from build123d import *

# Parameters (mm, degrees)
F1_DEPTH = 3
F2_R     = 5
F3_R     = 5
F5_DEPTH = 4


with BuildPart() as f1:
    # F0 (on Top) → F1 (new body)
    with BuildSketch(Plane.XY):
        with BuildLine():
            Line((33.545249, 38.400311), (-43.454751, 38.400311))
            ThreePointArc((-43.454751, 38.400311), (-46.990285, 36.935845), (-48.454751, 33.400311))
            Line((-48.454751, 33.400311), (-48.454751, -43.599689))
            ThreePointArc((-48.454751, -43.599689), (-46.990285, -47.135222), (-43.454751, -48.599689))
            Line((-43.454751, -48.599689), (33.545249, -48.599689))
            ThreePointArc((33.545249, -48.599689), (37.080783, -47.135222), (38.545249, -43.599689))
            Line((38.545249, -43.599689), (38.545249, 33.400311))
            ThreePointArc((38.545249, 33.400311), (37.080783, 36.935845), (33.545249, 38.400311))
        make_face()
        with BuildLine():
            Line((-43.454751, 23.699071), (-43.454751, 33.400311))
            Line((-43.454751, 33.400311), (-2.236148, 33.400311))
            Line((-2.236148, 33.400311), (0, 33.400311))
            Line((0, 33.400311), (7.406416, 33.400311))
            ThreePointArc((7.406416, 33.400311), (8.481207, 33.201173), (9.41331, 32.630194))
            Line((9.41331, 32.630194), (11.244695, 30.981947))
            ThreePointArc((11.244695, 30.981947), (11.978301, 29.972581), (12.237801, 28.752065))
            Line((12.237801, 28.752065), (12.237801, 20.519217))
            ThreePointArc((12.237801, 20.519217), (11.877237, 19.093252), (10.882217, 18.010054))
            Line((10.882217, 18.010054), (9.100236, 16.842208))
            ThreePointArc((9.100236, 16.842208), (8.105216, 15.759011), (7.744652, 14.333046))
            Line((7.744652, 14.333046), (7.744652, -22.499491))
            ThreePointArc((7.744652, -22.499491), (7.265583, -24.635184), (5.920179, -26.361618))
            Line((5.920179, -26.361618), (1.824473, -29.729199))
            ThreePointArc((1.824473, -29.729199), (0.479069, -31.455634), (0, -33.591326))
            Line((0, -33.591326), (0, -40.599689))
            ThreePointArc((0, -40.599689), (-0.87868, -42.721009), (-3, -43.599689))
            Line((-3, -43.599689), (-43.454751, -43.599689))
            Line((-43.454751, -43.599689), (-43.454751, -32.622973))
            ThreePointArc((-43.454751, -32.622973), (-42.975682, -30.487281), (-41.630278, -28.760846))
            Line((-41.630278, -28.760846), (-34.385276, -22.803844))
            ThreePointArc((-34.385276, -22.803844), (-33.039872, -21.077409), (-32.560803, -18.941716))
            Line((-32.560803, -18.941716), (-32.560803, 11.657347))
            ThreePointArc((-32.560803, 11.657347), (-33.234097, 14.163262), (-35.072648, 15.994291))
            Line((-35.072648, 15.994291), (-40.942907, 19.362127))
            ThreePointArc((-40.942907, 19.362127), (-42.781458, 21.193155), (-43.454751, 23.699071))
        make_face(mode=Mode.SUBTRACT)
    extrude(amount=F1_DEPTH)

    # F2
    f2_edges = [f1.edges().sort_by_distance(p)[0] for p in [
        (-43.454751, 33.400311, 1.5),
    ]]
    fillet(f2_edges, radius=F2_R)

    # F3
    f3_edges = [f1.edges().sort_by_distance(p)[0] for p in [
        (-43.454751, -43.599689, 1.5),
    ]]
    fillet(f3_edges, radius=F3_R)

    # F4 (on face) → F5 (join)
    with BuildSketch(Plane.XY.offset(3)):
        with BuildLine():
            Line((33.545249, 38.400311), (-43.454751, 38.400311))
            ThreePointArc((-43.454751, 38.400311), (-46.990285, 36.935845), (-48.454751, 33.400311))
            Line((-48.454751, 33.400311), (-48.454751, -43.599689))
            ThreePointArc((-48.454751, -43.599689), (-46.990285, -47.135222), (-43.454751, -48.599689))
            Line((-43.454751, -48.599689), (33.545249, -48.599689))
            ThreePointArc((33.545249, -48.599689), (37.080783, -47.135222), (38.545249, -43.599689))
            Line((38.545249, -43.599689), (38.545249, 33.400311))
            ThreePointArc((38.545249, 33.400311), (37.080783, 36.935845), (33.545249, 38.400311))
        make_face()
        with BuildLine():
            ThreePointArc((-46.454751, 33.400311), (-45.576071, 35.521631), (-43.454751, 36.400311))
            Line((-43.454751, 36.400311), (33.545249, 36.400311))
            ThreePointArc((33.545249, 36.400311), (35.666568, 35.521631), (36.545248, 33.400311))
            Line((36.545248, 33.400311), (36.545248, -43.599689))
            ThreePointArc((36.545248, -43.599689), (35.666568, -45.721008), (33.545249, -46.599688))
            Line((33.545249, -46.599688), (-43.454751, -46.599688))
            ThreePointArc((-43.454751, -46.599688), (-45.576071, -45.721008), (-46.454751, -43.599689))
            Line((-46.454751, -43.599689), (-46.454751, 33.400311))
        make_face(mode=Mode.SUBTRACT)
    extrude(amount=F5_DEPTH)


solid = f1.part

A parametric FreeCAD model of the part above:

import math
import FreeCAD as App
import Part
import Sketcher


def edges_at(feature, points):
    """Names of the edges that pass closest to the given points."""
    edges = feature.Shape.Edges
    near = lambda p: min(range(len(edges)), key=lambda i: edges[i].distToShape(Part.Vertex(*p))[0])
    return sorted({f"Edge{near(p) + 1}" for p in points})

doc = App.newDocument("Part")
body = doc.addObject("PartDesign::Body", "Body")

# Sketch on XY plane
sketch1 = body.newObject("Sketcher::SketchObject", "Sketch")
sketch1.AttachmentSupport = (doc.getObject("XY_Plane"), [""])
sketch1.MapMode = "FlatFace"
sketch1.addGeometry(Part.LineSegment(App.Vector(33.5, 38.4, 0), App.Vector(-43.5, 38.4, 0)), False)
sketch1.addGeometry(Part.ArcOfCircle(Part.Circle(App.Vector(-43.5, 33.4, 0), App.Vector(0, 0, 1), 5), math.radians(90), math.radians(180)), False)
sketch1.addGeometry(Part.LineSegment(App.Vector(-48.5, 33.4, 0), App.Vector(-48.5, -43.6, 0)), False)
sketch1.addGeometry(Part.ArcOfCircle(Part.Circle(App.Vector(-43.5, -43.6, 0), App.Vector(0, 0, 1), 5), math.radians(-180), math.radians(-90)), False)
sketch1.addGeometry(Part.LineSegment(App.Vector(-43.5, -48.6, 0), App.Vector(33.5, -48.6, 0)), False)
sketch1.addGeometry(Part.ArcOfCircle(Part.Circle(App.Vector(33.5, -43.6, 0), App.Vector(0, 0, 1), 5), math.radians(-90), math.radians(0)), False)
sketch1.addGeometry(Part.LineSegment(App.Vector(38.5, -43.6, 0), App.Vector(38.5, 33.4, 0)), False)
sketch1.addGeometry(Part.ArcOfCircle(Part.Circle(App.Vector(33.5, 33.4, 0), App.Vector(0, 0, 1), 5), math.radians(0), math.radians(90)), False)
sketch1.addGeometry(Part.ArcOfCircle(Part.Circle(App.Vector(-38.5, 23.7, 0), App.Vector(0, 0, 1), 5), math.radians(180), math.radians(240)), False)
sketch1.addGeometry(Part.LineSegment(App.Vector(-43.5, 23.7, 0), App.Vector(-43.5, 33.4, 0)), False)
sketch1.addGeometry(Part.LineSegment(App.Vector(-43.5, 33.4, 0), App.Vector(7.4, 33.4, 0)), False)
sketch1.addGeometry(Part.ArcOfCircle(Part.Circle(App.Vector(7.4, 30.4, 0), App.Vector(0, 0, 1), 3), math.radians(48), math.radians(90)), False)
sketch1.addGeometry(Part.LineSegment(App.Vector(9.4, 32.6, 0), App.Vector(11.2, 31, 0)), False)
sketch1.addGeometry(Part.ArcOfCircle(Part.Circle(App.Vector(9.2, 28.8, 0), App.Vector(0, 0, 1), 3), math.radians(0), math.radians(48)), False)
sketch1.addGeometry(Part.LineSegment(App.Vector(12.2, 28.8, 0), App.Vector(12.2, 20.5, 0)), False)
sketch1.addGeometry(Part.ArcOfCircle(Part.Circle(App.Vector(9.2, 20.5, 0), App.Vector(0, 0, 1), 3), math.radians(-57), math.radians(0)), False)
sketch1.addGeometry(Part.LineSegment(App.Vector(10.9, 18, 0), App.Vector(9.1, 16.8, 0)), False)
sketch1.addGeometry(Part.ArcOfCircle(Part.Circle(App.Vector(10.7, 14.3, 0), App.Vector(0, 0, 1), 3), math.radians(123), math.radians(180)), False)
sketch1.addGeometry(Part.LineSegment(App.Vector(7.7, 14.3, 0), App.Vector(7.7, -22.5, 0)), False)
sketch1.addGeometry(Part.ArcOfCircle(Part.Circle(App.Vector(2.7, -22.5, 0), App.Vector(0, 0, 1), 5), math.radians(-51), math.radians(0)), False)
sketch1.addGeometry(Part.LineSegment(App.Vector(5.9, -26.4, 0), App.Vector(1.8, -29.7, 0)), False)
sketch1.addGeometry(Part.ArcOfCircle(Part.Circle(App.Vector(5, -33.6, 0), App.Vector(0, 0, 1), 5), math.radians(129), math.radians(180)), False)
sketch1.addGeometry(Part.LineSegment(App.Vector(0, -33.6, 0), App.Vector(0, -40.6, 0)), False)
sketch1.addGeometry(Part.ArcOfCircle(Part.Circle(App.Vector(-3, -40.6, 0), App.Vector(0, 0, 1), 3), math.radians(-90), math.radians(0)), False)
sketch1.addGeometry(Part.LineSegment(App.Vector(-3, -43.6, 0), App.Vector(-43.5, -43.6, 0)), False)
sketch1.addGeometry(Part.LineSegment(App.Vector(-43.5, -43.6, 0), App.Vector(-43.5, -32.6, 0)), False)
sketch1.addGeometry(Part.ArcOfCircle(Part.Circle(App.Vector(-38.5, -32.6, 0), App.Vector(0, 0, 1), 5), math.radians(129), math.radians(180)), False)
sketch1.addGeometry(Part.LineSegment(App.Vector(-41.6, -28.8, 0), App.Vector(-34.4, -22.8, 0)), False)
sketch1.addGeometry(Part.ArcOfCircle(Part.Circle(App.Vector(-37.6, -18.9, 0), App.Vector(0, 0, 1), 5), math.radians(-51), math.radians(0)), False)
sketch1.addGeometry(Part.LineSegment(App.Vector(-32.6, -18.9, 0), App.Vector(-32.6, 11.7, 0)), False)
sketch1.addGeometry(Part.ArcOfCircle(Part.Circle(App.Vector(-37.6, 11.7, 0), App.Vector(0, 0, 1), 5), math.radians(0), math.radians(60)), False)
sketch1.addGeometry(Part.LineSegment(App.Vector(-35.1, 16, 0), App.Vector(-40.9, 19.4, 0)), False)
sketch1.addConstraint(Sketcher.Constraint("Tangent", 0, 2, 1, 1))
sketch1.addConstraint(Sketcher.Constraint("Tangent", 1, 2, 2, 1))
sketch1.addConstraint(Sketcher.Constraint("Tangent", 2, 2, 3, 1))
sketch1.addConstraint(Sketcher.Constraint("Tangent", 3, 2, 4, 1))
sketch1.addConstraint(Sketcher.Constraint("Tangent", 4, 2, 5, 1))
sketch1.addConstraint(Sketcher.Constraint("Tangent", 5, 2, 6, 1))
sketch1.addConstraint(Sketcher.Constraint("Tangent", 6, 2, 7, 1))
sketch1.addConstraint(Sketcher.Constraint("Tangent", 7, 2, 0, 1))
sketch1.addConstraint(Sketcher.Constraint("Tangent", 8, 1, 9, 1))
sketch1.addConstraint(Sketcher.Constraint("Coincident", 9, 2, 10, 1))
sketch1.addConstraint(Sketcher.Constraint("Tangent", 10, 2, 11, 2))
sketch1.addConstraint(Sketcher.Constraint("Tangent", 11, 1, 12, 1))
sketch1.addConstraint(Sketcher.Constraint("Tangent", 12, 2, 13, 2))
sketch1.addConstraint(Sketcher.Constraint("Tangent", 13, 1, 14, 1))
sketch1.addConstraint(Sketcher.Constraint("Tangent", 14, 2, 15, 2))
sketch1.addConstraint(Sketcher.Constraint("Tangent", 15, 1, 16, 1))
sketch1.addConstraint(Sketcher.Constraint("Tangent", 16, 2, 17, 1))
sketch1.addConstraint(Sketcher.Constraint("Tangent", 17, 2, 18, 1))
sketch1.addConstraint(Sketcher.Constraint("Tangent", 18, 2, 19, 2))
sketch1.addConstraint(Sketcher.Constraint("Tangent", 19, 1, 20, 1))
sketch1.addConstraint(Sketcher.Constraint("Tangent", 20, 2, 21, 1))
sketch1.addConstraint(Sketcher.Constraint("Tangent", 21, 2, 22, 1))
sketch1.addConstraint(Sketcher.Constraint("Tangent", 22, 2, 23, 2))
sketch1.addConstraint(Sketcher.Constraint("Tangent", 23, 1, 24, 1))
sketch1.addConstraint(Sketcher.Constraint("Coincident", 24, 2, 25, 1))
sketch1.addConstraint(Sketcher.Constraint("Tangent", 25, 2, 26, 2))
sketch1.addConstraint(Sketcher.Constraint("Tangent", 26, 1, 27, 1))
sketch1.addConstraint(Sketcher.Constraint("Tangent", 27, 2, 28, 1))
sketch1.addConstraint(Sketcher.Constraint("Tangent", 28, 2, 29, 1))
sketch1.addConstraint(Sketcher.Constraint("Tangent", 29, 2, 30, 1))
sketch1.addConstraint(Sketcher.Constraint("Tangent", 30, 2, 31, 1))
sketch1.addConstraint(Sketcher.Constraint("Tangent", 31, 2, 8, 2))
sketch1.addConstraint(Sketcher.Constraint("Horizontal", 0))
sketch1.addConstraint(Sketcher.Constraint("Vertical", 2))
sketch1.addConstraint(Sketcher.Constraint("Horizontal", 4))
sketch1.addConstraint(Sketcher.Constraint("Vertical", 6))
sketch1.addConstraint(Sketcher.Constraint("Vertical", 9))
sketch1.addConstraint(Sketcher.Constraint("Horizontal", 10))
sketch1.addConstraint(Sketcher.Constraint("Vertical", 14))
sketch1.addConstraint(Sketcher.Constraint("Vertical", 18))
sketch1.addConstraint(Sketcher.Constraint("Vertical", 22))
sketch1.addConstraint(Sketcher.Constraint("Horizontal", 24))
sketch1.addConstraint(Sketcher.Constraint("Vertical", 25))
sketch1.addConstraint(Sketcher.Constraint("Vertical", 29))
sketch1.addConstraint(Sketcher.Constraint("Coincident", 9, 2, 1, 3))
sketch1.addConstraint(Sketcher.Constraint("Coincident", 24, 2, 3, 3))
sketch1.addConstraint(Sketcher.Constraint("Equal", 1, 3))
sketch1.addConstraint(Sketcher.Constraint("Equal", 3, 5))
sketch1.addConstraint(Sketcher.Constraint("Equal", 5, 7))
sketch1.addConstraint(Sketcher.Constraint("Equal", 8, 19))
sketch1.addConstraint(Sketcher.Constraint("Equal", 7, 21))
sketch1.addConstraint(Sketcher.Constraint("Equal", 17, 23))
sketch1.addConstraint(Sketcher.Constraint("Equal", 21, 26))
sketch1.addConstraint(Sketcher.Constraint("Equal", 26, 28))
sketch1.addConstraint(Sketcher.Constraint("Equal", 5, 30))
sketch1.addConstraint(Sketcher.Constraint("PointOnObject", 21, 2, -2))
sketch1.addConstraint(Sketcher.Constraint("Parallel", 20, 27))
sketch1.addConstraint(Sketcher.Constraint("Equal", 4, 2))
sketch1.addConstraint(Sketcher.Constraint("Radius", 1, 5.0))
sketch1.addConstraint(Sketcher.Constraint("Radius", 13, 2.999998))
sketch1.addConstraint(Sketcher.Constraint("Radius", 17, 3.0))
sketch1.addConstraint(Sketcher.Constraint("DistanceX", 0, 2, 0, 1, 77.0))
sketch1.addConstraint(Sketcher.Constraint("Radius", 8, 4.999996))
sketch1.addConstraint(Sketcher.Constraint("Radius", 11, 2.999994))
sketch1.addConstraint(Sketcher.Constraint("Radius", 15, 3.000004))
sketch1.addConstraint(Sketcher.Constraint("DistanceY", 26, 1, 27, 2, 5.957002))
sketch1.addConstraint(Sketcher.Constraint("DistanceX", 24, 2, 24, 1, 40.454751))
sketch1.addConstraint(Sketcher.Constraint("DistanceY", 9, 1, 9, 2, 9.70124))
sketch1.addConstraint(Sketcher.Constraint("DistanceY", 14, 2, 14, 1, 8.232848))
sketch1.addConstraint(Sketcher.Constraint("DistanceX", -1, 1, 13, 1, 12.237801))
sketch1.addConstraint(Sketcher.Constraint("DistanceY", 20, 2, -1, 1, 29.729199))
sketch1.addConstraint(Sketcher.Constraint("DistanceY", 15, 3, 11, 3, 9.881099))
sketch1.addConstraint(Sketcher.Constraint("DistanceX", 31, 2, 30, 3, 3.382101))
sketch1.addConstraint(Sketcher.Constraint("Distance", 16, 2.130568))
sketch1.addConstraint(Sketcher.Constraint("Distance", 27, 9.379548))
sketch1.addConstraint(Sketcher.Constraint("DistanceX", 10, 1, 10, 2, 50.861167))
sketch1.addConstraint(Sketcher.Constraint("DistanceY", 18, 2, 18, 1, 36.832537))
sketch1.addConstraint(Sketcher.Constraint("DistanceY", 22, 2, 22, 1, 7.008363))
sketch1.addConstraint(Sketcher.Constraint("DistanceY", 25, 1, 25, 2, 10.976716))
pad1 = body.newObject("PartDesign::Pad", "Pad")
pad1.Profile = sketch1
pad1.Length = 3
doc.recompute()

fillet = body.newObject("PartDesign::Fillet", "Fillet")
fillet.Base = (pad1, edges_at(pad1, [(-43.455, 33.4, 1.5)]))
fillet.Radius = 5
doc.recompute()

fillet2 = body.newObject("PartDesign::Fillet", "Fillet001")
fillet2.Base = (fillet, edges_at(fillet, [(-43.455, -43.6, 1.5)]))
fillet2.Radius = 5

# Sketch on XY plane
sketch2 = body.newObject("Sketcher::SketchObject", "Sketch001")
sketch2.AttachmentSupport = (doc.getObject("XY_Plane"), [""])
sketch2.MapMode = "FlatFace"
sketch2.AttachmentOffset = App.Placement(App.Vector(0, 0, 3), App.Rotation())
sketch2.addGeometry(Part.LineSegment(App.Vector(33.5, 38.4, 0), App.Vector(-43.5, 38.4, 0)), False)
sketch2.addGeometry(Part.ArcOfCircle(Part.Circle(App.Vector(-43.5, 33.4, 0), App.Vector(0, 0, 1), 5), math.radians(90), math.radians(180)), False)
sketch2.addGeometry(Part.LineSegment(App.Vector(-48.5, 33.4, 0), App.Vector(-48.5, -43.6, 0)), False)
sketch2.addGeometry(Part.ArcOfCircle(Part.Circle(App.Vector(-43.5, -43.6, 0), App.Vector(0, 0, 1), 5), math.radians(-180), math.radians(-90)), False)
sketch2.addGeometry(Part.LineSegment(App.Vector(-43.5, -48.6, 0), App.Vector(33.5, -48.6, 0)), False)
sketch2.addGeometry(Part.ArcOfCircle(Part.Circle(App.Vector(33.5, -43.6, 0), App.Vector(0, 0, 1), 5), math.radians(-90), math.radians(0)), False)
sketch2.addGeometry(Part.LineSegment(App.Vector(38.5, -43.6, 0), App.Vector(38.5, 33.4, 0)), False)
sketch2.addGeometry(Part.ArcOfCircle(Part.Circle(App.Vector(33.5, 33.4, 0), App.Vector(0, 0, 1), 5), math.radians(0), math.radians(90)), False)
sketch2.addGeometry(Part.LineSegment(App.Vector(-46.5, -43.6, 0), App.Vector(-46.5, 33.4, 0)), False)
sketch2.addGeometry(Part.ArcOfCircle(Part.Circle(App.Vector(-43.5, 33.4, 0), App.Vector(0, 0, 1), 3), math.radians(90), math.radians(180)), False)
sketch2.addGeometry(Part.LineSegment(App.Vector(-43.5, 36.4, 0), App.Vector(33.5, 36.4, 0)), False)
sketch2.addGeometry(Part.ArcOfCircle(Part.Circle(App.Vector(33.5, 33.4, 0), App.Vector(0, 0, 1), 3), math.radians(0), math.radians(90)), False)
sketch2.addGeometry(Part.LineSegment(App.Vector(36.5, 33.4, 0), App.Vector(36.5, -43.6, 0)), False)
sketch2.addGeometry(Part.ArcOfCircle(Part.Circle(App.Vector(33.5, -43.6, 0), App.Vector(0, 0, 1), 3), math.radians(-90), math.radians(0)), False)
sketch2.addGeometry(Part.LineSegment(App.Vector(33.5, -46.6, 0), App.Vector(-43.5, -46.6, 0)), False)
sketch2.addGeometry(Part.ArcOfCircle(Part.Circle(App.Vector(-43.5, -43.6, 0), App.Vector(0, 0, 1), 3), math.radians(-180), math.radians(-90)), False)
sketch2.addConstraint(Sketcher.Constraint("Tangent", 0, 2, 1, 1))
sketch2.addConstraint(Sketcher.Constraint("Tangent", 1, 2, 2, 1))
sketch2.addConstraint(Sketcher.Constraint("Tangent", 2, 2, 3, 1))
sketch2.addConstraint(Sketcher.Constraint("Tangent", 3, 2, 4, 1))
sketch2.addConstraint(Sketcher.Constraint("Tangent", 4, 2, 5, 1))
sketch2.addConstraint(Sketcher.Constraint("Tangent", 5, 2, 6, 1))
sketch2.addConstraint(Sketcher.Constraint("Tangent", 6, 2, 7, 1))
sketch2.addConstraint(Sketcher.Constraint("Tangent", 7, 2, 0, 1))
sketch2.addConstraint(Sketcher.Constraint("Tangent", 8, 2, 9, 2))
sketch2.addConstraint(Sketcher.Constraint("Tangent", 9, 1, 10, 1))
sketch2.addConstraint(Sketcher.Constraint("Tangent", 10, 2, 11, 2))
sketch2.addConstraint(Sketcher.Constraint("Tangent", 11, 1, 12, 1))
sketch2.addConstraint(Sketcher.Constraint("Tangent", 12, 2, 13, 2))
sketch2.addConstraint(Sketcher.Constraint("Tangent", 13, 1, 14, 1))
sketch2.addConstraint(Sketcher.Constraint("Tangent", 14, 2, 15, 2))
sketch2.addConstraint(Sketcher.Constraint("Tangent", 15, 1, 8, 1))
sketch2.addConstraint(Sketcher.Constraint("Horizontal", 0))
sketch2.addConstraint(Sketcher.Constraint("Vertical", 2))
sketch2.addConstraint(Sketcher.Constraint("Horizontal", 4))
sketch2.addConstraint(Sketcher.Constraint("Vertical", 6))
sketch2.addConstraint(Sketcher.Constraint("Vertical", 8))
sketch2.addConstraint(Sketcher.Constraint("Horizontal", 10))
sketch2.addConstraint(Sketcher.Constraint("Vertical", 12))
sketch2.addConstraint(Sketcher.Constraint("Horizontal", 14))
sketch2.addConstraint(Sketcher.Constraint("Coincident", 9, 3, 1, 3))
sketch2.addConstraint(Sketcher.Constraint("Coincident", 11, 3, 7, 3))
sketch2.addConstraint(Sketcher.Constraint("Coincident", 13, 3, 5, 3))
sketch2.addConstraint(Sketcher.Constraint("Equal", 1, 3))
sketch2.addConstraint(Sketcher.Constraint("Equal", 3, 5))
sketch2.addConstraint(Sketcher.Constraint("Equal", 5, 7))
sketch2.addConstraint(Sketcher.Constraint("Equal", 13, 15))
sketch2.addConstraint(Sketcher.Constraint("Equal", 14, 2))
sketch2.addConstraint(Sketcher.Constraint("Radius", 1, 5.0))
sketch2.addConstraint(Sketcher.Constraint("Radius", 9, 3.000001))
sketch2.addConstraint(Sketcher.Constraint("DistanceX", 0, 2, 0, 1, 77.0))
sketch2.addConstraint(Sketcher.Constraint("DistanceX", 1, 3, -1, 1, 43.454751))
sketch2.addConstraint(Sketcher.Constraint("DistanceY", -1, 1, 1, 3, 33.400311))
pad2 = body.newObject("PartDesign::Pad", "Pad001")
pad2.Profile = sketch2
pad2.Length = 4

doc.recompute()
